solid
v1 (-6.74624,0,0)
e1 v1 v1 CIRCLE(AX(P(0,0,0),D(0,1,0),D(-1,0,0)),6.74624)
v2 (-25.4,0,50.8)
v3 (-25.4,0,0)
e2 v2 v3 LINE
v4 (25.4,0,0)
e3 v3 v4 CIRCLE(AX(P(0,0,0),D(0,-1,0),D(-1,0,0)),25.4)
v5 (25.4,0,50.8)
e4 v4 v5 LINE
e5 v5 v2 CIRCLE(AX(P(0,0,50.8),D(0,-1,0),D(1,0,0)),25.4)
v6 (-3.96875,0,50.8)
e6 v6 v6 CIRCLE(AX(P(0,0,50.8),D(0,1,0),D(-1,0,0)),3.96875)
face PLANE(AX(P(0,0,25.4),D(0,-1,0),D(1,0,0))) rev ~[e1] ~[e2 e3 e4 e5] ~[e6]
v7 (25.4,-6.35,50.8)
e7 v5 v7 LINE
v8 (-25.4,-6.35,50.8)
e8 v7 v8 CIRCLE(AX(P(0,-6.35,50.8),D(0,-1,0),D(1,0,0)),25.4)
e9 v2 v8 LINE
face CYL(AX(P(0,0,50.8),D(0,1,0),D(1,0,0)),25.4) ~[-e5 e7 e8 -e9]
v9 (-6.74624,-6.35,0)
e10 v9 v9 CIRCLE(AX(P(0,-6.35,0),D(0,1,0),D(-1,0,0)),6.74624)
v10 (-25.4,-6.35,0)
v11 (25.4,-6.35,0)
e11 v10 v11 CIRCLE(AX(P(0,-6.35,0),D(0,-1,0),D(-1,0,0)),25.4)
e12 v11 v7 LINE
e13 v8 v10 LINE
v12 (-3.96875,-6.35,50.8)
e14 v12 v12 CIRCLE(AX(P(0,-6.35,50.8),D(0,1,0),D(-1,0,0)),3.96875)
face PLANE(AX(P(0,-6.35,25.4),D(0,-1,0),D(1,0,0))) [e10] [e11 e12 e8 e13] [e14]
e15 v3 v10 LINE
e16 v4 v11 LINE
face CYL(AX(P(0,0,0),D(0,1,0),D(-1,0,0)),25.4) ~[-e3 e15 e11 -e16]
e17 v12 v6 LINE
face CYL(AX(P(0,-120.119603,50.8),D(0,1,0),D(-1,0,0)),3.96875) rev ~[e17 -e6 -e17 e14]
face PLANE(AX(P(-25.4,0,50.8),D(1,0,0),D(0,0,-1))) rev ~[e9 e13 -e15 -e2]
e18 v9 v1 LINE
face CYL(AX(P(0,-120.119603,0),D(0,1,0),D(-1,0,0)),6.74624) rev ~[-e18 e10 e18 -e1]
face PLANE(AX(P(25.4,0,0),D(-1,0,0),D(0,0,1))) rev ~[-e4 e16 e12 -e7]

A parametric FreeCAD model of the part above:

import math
import FreeCAD as App
import Part
import Sketcher
from FreeCAD import Vector
Q = App.Units.Quantity

doc = App.newDocument("Part")
params = doc.addObject("Spreadsheet::Sheet", "Params")
for row, (alias, value) in enumerate([
    ("sketch1_radius", "1 in"),
    ("sketch1_height", "2 in"),
    ("pad1_length", "0.25 in"),
    ("sketch2_diameter", "0.3125 in"),
    ("hole_diameter", "0.3125 in"),
    ("hole2_diameter", "0.5312 in"),
], start=1):
    params.set(f"A{row}", alias)
    params.set(f"B{row}", "=" + value)
    params.setAlias(f"B{row}", alias)

body = doc.addObject("PartDesign::Body", "Body")

# Sketch on XZ plane
sketch1 = body.newObject("Sketcher::SketchObject", "Sketch")
sketch1.AttachmentSupport = (doc.getObject("XZ_Plane"), [""])
sketch1.MapMode = "FlatFace"
sketch1.addGeometry([
    Part.LineSegment(Vector(-25, 51, 0), Vector(-25, 0, 0)),
    Part.ArcOfCircle(Part.Circle(Vector(0, 0, 0), Vector(0, 0, 1), 25), math.radians(180), math.radians(360)),
    Part.LineSegment(Vector(25, 0, 0), Vector(25, 51, 0)),
    Part.ArcOfCircle(Part.Circle(Vector(0, 51, 0), Vector(0, 0, 1), 25), math.radians(0), math.radians(180)),
], False)
sketch1.addConstraint([
    Sketcher.Constraint("Tangent", 0, 2, 1, 1),
    Sketcher.Constraint("Tangent", 1, 2, 2, 1),
    Sketcher.Constraint("Tangent", 2, 2, 3, 1),
    Sketcher.Constraint("Tangent", 3, 2, 0, 1),
    Sketcher.Constraint("Vertical", 0),
    Sketcher.Constraint("Vertical", 2),
    Sketcher.Constraint("Coincident", 1, 3, -1, 1),
    Sketcher.Constraint("Radius", 1, Q("1 in")),
    Sketcher.Constraint("DistanceY", 0, 2, 0, 1, Q("2 in")),
])
sketch1.setExpression("Constraints[7]", "Params.sketch1_radius")
sketch1.setExpression("Constraints[8]", "Params.sketch1_height")
pad1 = body.newObject("PartDesign::Pad", "Pad")
pad1.Profile = sketch1
pad1.setExpression("Length", "Params.pad1_length")

# Sketch on XZ plane
sketch2 = body.newObject("Sketcher::SketchObject", "Sketch001")
sketch2.AttachmentSupport = (doc.getObject("XZ_Plane"), [""])
sketch2.MapMode = "FlatFace"
sketch2.AttachmentOffset = App.Placement(Vector(0, 0, 0.25 * 25.4), App.Rotation())
sketch2.addGeometry(Part.Circle(Vector(0, 50.8, 0), Vector(0, 0, 1), 4), False)
sketch2.addConstraint([
    Sketcher.Constraint("PointOnObject", 0, 3, -2),
    Sketcher.Constraint("Diameter", 0, Q("0.3125 in")),
    Sketcher.Constraint("DistanceY", -1, 1, 0, 3, Q("2 in")),
])
sketch2.setExpression("Constraints[1]", "Params.sketch2_diameter")
doc.recompute()
hole = body.newObject("PartDesign::Hole", "Hole")
hole.Profile = sketch2
hole.ThreadType = "None"
hole.setExpression("Diameter", "Params.hole_diameter")
hole.DepthType = "ThroughAll"

# Sketch on XZ plane
sketch3 = body.newObject("Sketcher::SketchObject", "Sketch002")
sketch3.AttachmentSupport = (doc.getObject("XZ_Plane"), [""])
sketch3.MapMode = "FlatFace"
sketch3.AttachmentOffset = App.Placement(Vector(0, 0, 0.25 * 25.4), App.Rotation())
sketch3.addGeometry(Part.Circle(Vector(0, 0, 0), Vector(0, 0, 1), 7), False)
sketch3.addConstraint([
    Sketcher.Constraint("Coincident", 0, 3, -1, 1),
    Sketcher.Constraint("Diameter", 0, Q("0.5312 in")),
])
doc.recompute()
hole2 = body.newObject("PartDesign::Hole", "Hole001")
hole2.Profile = sketch3
hole2.ThreadType = "None"
hole2.setExpression("Diameter", "Params.hole2_diameter")
hole2.DepthType = "ThroughAll"

doc.recompute()
